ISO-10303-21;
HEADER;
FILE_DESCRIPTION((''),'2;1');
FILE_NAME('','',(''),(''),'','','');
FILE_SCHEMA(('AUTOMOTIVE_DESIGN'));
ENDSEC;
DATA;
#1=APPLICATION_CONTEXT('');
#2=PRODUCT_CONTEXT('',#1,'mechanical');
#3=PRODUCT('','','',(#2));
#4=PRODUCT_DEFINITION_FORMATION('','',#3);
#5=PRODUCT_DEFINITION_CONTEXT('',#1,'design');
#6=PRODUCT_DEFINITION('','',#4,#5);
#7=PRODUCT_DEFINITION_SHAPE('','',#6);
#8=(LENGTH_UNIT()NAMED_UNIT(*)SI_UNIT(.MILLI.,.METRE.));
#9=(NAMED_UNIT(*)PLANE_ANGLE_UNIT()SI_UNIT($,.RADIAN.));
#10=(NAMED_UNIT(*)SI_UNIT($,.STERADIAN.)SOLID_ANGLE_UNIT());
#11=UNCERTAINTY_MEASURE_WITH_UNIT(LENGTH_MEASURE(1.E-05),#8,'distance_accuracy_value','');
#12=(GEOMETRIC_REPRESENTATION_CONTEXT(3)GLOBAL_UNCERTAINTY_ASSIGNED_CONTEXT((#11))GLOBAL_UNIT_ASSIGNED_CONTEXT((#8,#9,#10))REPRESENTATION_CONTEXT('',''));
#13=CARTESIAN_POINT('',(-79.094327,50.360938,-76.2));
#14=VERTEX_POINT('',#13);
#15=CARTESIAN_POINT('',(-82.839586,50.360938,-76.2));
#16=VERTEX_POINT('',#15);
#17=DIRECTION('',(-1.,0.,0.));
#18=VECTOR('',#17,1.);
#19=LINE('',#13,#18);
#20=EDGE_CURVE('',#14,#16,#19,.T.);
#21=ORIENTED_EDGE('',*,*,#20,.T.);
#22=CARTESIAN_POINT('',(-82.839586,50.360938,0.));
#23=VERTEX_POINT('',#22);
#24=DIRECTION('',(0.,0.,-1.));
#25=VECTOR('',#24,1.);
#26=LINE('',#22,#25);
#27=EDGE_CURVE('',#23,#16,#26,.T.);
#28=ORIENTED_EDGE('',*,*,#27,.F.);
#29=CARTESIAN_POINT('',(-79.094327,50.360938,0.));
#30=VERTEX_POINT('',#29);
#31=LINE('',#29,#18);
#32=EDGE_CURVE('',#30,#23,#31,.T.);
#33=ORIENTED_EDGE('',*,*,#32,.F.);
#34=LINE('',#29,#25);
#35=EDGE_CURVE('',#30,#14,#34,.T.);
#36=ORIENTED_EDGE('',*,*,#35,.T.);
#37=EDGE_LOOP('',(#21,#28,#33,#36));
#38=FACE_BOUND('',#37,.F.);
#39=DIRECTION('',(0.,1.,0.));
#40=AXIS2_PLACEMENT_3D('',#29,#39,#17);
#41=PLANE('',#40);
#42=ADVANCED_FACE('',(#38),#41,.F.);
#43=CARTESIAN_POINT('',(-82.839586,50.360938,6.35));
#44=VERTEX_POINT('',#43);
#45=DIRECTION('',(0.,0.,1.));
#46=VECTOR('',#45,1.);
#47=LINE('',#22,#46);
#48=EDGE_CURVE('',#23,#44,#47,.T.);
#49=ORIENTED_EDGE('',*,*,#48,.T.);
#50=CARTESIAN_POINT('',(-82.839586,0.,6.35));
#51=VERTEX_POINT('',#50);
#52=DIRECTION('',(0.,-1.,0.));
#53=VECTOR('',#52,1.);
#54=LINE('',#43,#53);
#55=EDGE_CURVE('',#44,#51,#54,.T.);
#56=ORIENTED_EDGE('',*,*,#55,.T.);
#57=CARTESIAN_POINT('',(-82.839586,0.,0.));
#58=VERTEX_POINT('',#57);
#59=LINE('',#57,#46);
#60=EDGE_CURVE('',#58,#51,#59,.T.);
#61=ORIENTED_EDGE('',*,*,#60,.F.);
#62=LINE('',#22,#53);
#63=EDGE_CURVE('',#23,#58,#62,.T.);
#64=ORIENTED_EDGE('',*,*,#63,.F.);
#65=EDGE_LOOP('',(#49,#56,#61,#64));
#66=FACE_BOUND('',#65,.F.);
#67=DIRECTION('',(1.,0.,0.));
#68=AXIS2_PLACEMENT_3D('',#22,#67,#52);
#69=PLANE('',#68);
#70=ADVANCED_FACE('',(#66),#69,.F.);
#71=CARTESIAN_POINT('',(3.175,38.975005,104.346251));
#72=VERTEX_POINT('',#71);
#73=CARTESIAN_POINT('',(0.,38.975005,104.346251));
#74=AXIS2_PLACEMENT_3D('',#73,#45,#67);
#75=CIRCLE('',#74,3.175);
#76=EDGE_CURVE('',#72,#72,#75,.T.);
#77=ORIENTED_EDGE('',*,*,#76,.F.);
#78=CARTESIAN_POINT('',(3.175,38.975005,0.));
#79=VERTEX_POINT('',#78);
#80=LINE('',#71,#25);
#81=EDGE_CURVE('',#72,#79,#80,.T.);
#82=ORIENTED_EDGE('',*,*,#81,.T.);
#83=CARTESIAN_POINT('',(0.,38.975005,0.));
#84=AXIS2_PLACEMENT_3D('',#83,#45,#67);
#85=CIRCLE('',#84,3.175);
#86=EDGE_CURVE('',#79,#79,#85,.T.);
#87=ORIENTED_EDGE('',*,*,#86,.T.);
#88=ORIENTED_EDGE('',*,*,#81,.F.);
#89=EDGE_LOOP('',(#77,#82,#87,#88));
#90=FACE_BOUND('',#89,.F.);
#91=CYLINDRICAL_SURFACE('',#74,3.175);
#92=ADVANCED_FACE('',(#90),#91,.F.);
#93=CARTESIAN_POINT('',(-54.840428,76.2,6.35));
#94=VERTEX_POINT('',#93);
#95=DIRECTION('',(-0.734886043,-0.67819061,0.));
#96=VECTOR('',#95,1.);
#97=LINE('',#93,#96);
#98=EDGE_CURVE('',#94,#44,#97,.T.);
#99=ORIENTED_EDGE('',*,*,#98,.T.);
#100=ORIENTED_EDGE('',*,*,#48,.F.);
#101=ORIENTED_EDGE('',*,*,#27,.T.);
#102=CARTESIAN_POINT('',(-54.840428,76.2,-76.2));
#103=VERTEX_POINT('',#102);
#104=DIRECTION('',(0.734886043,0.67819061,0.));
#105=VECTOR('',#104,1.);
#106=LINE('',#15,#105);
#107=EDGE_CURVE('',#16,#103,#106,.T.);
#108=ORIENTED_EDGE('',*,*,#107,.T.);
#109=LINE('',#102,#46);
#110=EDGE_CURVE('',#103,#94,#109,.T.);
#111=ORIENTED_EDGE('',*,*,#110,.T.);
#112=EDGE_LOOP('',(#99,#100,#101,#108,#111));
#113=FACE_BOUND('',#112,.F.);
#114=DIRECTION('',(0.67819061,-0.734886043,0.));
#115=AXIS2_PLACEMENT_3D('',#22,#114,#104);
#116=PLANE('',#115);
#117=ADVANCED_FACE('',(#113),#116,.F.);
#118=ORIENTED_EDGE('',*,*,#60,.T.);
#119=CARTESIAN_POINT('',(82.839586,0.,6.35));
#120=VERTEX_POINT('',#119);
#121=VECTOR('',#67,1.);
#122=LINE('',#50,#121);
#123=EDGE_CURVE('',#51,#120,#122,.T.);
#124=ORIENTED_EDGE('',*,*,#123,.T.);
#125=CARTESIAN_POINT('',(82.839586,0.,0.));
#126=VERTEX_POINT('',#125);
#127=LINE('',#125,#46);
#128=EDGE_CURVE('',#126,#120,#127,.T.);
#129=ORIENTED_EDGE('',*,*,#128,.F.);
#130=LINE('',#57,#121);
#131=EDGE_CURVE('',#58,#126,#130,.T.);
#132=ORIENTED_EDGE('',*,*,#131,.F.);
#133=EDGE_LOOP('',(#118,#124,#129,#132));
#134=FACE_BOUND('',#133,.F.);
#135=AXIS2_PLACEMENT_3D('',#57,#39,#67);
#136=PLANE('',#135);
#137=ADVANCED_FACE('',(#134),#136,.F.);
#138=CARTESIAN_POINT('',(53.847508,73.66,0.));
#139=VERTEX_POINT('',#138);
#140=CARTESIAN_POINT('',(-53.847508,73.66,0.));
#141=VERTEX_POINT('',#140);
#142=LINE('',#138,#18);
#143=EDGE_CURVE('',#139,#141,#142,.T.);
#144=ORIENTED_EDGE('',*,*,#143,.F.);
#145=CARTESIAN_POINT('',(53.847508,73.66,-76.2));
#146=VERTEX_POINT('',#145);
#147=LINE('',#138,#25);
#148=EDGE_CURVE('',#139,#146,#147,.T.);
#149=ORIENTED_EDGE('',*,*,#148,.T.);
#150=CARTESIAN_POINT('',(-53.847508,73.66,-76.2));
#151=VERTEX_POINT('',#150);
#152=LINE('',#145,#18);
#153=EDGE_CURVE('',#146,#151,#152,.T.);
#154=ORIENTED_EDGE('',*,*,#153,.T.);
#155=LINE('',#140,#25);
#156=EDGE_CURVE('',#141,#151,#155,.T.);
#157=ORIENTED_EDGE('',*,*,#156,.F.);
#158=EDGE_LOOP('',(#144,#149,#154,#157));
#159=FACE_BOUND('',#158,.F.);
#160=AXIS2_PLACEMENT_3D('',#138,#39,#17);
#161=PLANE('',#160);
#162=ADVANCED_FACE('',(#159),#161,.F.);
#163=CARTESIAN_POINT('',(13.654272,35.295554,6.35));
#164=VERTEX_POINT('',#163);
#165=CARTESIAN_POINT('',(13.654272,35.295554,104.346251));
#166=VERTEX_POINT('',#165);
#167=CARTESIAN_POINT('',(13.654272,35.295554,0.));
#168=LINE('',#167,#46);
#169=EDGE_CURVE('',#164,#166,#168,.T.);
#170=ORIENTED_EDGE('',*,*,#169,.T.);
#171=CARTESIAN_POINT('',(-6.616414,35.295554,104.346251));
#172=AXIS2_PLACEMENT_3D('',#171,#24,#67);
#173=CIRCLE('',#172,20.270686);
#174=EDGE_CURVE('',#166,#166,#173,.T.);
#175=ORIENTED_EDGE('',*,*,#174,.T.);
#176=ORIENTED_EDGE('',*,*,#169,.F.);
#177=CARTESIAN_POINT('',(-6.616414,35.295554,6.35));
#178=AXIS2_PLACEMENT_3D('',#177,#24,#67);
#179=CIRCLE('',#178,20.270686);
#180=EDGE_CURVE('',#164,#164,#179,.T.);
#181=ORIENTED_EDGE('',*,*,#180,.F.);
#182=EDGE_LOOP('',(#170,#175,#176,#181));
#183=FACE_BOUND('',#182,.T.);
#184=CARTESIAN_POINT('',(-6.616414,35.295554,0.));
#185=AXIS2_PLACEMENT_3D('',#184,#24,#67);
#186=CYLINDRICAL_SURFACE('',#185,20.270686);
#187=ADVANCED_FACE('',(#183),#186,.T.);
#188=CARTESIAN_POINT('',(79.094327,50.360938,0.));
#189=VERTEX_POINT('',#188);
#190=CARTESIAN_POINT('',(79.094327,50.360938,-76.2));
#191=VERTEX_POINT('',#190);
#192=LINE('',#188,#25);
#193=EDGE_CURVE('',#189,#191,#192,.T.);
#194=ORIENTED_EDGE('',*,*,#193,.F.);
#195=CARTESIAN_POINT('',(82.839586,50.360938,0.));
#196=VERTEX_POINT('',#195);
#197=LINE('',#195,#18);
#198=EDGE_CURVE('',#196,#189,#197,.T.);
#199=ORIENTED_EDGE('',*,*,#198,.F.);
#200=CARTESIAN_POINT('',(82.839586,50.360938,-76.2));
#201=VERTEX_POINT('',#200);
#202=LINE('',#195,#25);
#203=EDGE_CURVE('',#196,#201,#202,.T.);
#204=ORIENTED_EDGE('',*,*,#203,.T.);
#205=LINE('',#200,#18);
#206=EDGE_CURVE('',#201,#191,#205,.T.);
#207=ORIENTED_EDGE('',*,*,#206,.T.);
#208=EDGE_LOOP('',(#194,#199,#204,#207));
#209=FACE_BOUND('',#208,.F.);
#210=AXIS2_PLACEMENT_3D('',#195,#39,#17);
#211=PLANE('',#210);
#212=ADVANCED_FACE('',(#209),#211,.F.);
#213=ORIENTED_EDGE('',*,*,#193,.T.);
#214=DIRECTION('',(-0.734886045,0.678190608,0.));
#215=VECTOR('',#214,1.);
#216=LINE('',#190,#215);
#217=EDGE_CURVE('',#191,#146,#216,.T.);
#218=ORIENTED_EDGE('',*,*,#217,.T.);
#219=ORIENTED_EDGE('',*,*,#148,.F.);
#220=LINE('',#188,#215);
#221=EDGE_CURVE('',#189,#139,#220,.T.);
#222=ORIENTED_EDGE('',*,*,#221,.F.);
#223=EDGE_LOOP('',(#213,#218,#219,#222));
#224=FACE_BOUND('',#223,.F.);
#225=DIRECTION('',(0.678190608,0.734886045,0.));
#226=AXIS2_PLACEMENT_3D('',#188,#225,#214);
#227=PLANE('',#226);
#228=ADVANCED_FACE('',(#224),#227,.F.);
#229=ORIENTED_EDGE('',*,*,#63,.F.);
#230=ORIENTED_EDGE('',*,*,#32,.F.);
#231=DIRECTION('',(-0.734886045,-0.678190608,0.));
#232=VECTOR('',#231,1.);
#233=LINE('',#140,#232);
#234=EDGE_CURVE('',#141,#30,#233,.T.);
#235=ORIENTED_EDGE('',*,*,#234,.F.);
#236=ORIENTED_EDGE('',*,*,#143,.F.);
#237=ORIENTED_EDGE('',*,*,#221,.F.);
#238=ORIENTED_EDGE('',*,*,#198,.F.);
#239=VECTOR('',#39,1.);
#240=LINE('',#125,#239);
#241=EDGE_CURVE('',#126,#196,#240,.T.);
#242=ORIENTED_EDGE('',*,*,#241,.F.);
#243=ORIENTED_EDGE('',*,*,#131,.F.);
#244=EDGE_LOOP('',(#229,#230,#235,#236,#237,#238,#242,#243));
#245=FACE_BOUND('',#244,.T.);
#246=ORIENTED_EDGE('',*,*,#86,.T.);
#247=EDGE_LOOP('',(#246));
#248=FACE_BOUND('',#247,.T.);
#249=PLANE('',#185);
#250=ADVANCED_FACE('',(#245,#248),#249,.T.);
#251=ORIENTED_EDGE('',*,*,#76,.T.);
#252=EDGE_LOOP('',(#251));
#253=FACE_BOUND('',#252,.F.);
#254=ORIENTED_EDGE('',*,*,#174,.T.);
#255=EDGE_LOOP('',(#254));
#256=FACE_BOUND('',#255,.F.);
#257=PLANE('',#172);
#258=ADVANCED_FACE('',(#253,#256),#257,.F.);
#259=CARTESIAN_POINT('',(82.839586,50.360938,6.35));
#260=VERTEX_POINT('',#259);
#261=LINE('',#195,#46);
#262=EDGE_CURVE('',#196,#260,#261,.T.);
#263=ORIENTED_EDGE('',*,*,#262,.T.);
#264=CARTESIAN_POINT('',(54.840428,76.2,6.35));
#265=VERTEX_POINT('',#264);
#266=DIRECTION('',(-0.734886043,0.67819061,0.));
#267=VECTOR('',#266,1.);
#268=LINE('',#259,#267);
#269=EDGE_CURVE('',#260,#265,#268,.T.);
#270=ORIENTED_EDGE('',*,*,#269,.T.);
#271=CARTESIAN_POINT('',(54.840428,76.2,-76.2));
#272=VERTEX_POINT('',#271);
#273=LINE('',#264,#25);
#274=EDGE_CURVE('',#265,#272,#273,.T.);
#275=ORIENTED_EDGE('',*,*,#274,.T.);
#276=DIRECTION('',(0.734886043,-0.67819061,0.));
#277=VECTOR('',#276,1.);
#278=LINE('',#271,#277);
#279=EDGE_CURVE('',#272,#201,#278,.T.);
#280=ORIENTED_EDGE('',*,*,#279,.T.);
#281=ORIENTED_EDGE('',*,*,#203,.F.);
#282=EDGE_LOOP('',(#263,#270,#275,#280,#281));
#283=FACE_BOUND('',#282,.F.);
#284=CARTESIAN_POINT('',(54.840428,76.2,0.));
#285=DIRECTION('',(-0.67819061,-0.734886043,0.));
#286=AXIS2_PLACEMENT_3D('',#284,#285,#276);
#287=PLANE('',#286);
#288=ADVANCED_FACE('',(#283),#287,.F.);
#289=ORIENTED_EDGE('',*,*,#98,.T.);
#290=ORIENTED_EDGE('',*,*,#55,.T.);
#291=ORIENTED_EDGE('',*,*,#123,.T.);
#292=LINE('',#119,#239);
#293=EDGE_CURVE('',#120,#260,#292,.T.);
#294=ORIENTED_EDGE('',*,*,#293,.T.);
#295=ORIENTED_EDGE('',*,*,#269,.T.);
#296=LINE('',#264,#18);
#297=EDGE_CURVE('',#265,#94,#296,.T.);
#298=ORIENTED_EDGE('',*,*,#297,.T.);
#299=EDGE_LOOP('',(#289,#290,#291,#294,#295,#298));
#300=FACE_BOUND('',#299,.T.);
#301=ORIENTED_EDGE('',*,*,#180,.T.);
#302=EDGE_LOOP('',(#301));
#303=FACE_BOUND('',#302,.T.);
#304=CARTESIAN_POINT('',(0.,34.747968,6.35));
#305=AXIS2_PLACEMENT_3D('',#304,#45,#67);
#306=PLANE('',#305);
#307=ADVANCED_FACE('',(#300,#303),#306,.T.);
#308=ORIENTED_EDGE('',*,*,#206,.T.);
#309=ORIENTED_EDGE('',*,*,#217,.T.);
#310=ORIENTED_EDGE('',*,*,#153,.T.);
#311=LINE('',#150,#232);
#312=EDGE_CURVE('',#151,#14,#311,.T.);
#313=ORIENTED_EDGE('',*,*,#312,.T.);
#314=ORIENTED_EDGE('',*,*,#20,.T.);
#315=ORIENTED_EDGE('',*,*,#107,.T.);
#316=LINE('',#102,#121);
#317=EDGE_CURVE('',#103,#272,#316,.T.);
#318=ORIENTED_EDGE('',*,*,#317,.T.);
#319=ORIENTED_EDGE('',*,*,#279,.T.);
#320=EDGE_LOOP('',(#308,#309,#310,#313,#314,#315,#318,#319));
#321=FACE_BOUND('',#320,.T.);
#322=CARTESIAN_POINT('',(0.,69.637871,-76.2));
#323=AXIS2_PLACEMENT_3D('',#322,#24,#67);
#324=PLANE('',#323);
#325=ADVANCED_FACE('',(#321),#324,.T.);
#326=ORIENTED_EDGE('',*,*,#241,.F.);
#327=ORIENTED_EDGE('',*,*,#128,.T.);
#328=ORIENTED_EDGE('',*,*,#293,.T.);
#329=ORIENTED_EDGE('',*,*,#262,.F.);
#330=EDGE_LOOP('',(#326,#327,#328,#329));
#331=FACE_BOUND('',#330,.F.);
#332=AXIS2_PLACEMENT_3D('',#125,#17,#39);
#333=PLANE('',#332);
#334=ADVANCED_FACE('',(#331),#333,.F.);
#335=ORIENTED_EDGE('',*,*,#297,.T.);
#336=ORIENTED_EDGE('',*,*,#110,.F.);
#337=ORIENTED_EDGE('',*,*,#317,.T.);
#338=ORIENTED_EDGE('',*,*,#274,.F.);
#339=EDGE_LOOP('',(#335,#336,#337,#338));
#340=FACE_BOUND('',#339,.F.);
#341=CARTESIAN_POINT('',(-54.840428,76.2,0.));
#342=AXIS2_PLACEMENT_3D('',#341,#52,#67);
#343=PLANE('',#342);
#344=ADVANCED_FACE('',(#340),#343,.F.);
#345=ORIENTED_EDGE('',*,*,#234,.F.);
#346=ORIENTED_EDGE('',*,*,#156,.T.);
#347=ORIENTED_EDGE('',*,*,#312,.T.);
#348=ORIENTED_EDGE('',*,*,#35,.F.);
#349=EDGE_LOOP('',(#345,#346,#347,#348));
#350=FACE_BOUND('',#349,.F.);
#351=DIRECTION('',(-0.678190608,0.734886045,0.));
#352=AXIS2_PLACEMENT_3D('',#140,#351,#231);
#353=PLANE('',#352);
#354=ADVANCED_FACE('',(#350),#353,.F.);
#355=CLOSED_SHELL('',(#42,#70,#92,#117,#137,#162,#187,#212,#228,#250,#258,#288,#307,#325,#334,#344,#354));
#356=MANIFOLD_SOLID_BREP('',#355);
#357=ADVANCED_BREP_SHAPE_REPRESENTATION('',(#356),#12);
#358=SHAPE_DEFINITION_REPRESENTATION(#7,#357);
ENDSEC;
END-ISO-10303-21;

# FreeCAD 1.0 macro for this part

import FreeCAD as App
import Part
import Sketcher
Q = App.Units.Quantity


def add_polygon(sketch, points):
    """Adds a closed chain of lines whose ends are joined by coincident constraints."""
    first, n = sketch.GeometryCount, len(points)
    for a, b in zip(points, points[1:] + points[:1]):
        sketch.addGeometry(Part.LineSegment(App.Vector(*a, 0), App.Vector(*b, 0)), False)
    for i in range(n):
        sketch.addConstraint(Sketcher.Constraint("Coincident", first + i, 2, first + (i + 1) % n, 1))

doc = App.newDocument("Part")
params = doc.addObject("Spreadsheet::Sheet", "Params")
for row, (alias, value) in enumerate([
    ("sketch1_length", "1.5 in"),
    ("pad1_length", "0.25 in"),
    ("sketch2_length", "1.5 in"),
    ("pad2_length", "3 in"),
    ("pad3_length", "104.346251 mm"),
    ("sketch4_diameter", "0.25 in"),
], start=1):
    params.set(f"A{row}", alias)
    params.set(f"B{row}", "=" + value)
    params.setAlias(f"B{row}", alias)

body = doc.addObject("PartDesign::Body", "Body")

sketch1 = body.newObject("Sketcher::SketchObject", "Sketch")
sketch1.AttachmentSupport = (doc.getObject("XY_Plane"), [""])
sketch1.MapMode = "FlatFace"
add_polygon(sketch1, [(-83, 50), (-83, 0), (83, 0), (83, 50), (55, 76), (-55, 76)])
sketch1.addConstraint(Sketcher.Constraint("Vertical", 0))
sketch1.addConstraint(Sketcher.Constraint("Horizontal", 1))
sketch1.addConstraint(Sketcher.Constraint("Vertical", 2))
sketch1.addConstraint(Sketcher.Constraint("Horizontal", 4))
sketch1.addConstraint(Sketcher.Constraint("Symmetric", 0, 2, 1, 2, -1, 1))
sketch1.addConstraint(Sketcher.Constraint("Horizontal", 2, 2, 5, 2))
sketch1.addConstraint(Sketcher.Constraint("Equal", 3, 5))
sketch1.addConstraint(Sketcher.Constraint("DistanceY", -1, 1, 3, 2, Q("3 in")))
sketch1.addConstraint(Sketcher.Constraint("Distance", 3, Q("1.5 in")))
sketch1.addConstraint(Sketcher.Constraint("DistanceX", 1, 1, 1, 2, Q("165.679172 mm")))
sketch1.addConstraint(Sketcher.Constraint("DistanceX", 4, 2, 4, 1, Q("109.680856 mm")))
sketch1.setExpression("Constraints[14]", "Params.sketch1_length")
pad1 = body.newObject("PartDesign::Pad", "Pad")
pad1.Profile = sketch1
pad1.setExpression("Length", "Params.pad1_length")

sketch2 = body.newObject("Sketcher::SketchObject", "Sketch001")
sketch2.AttachmentSupport = (doc.getObject("XY_Plane"), [""])
sketch2.MapMode = "FlatFace"
add_polygon(sketch2, [(-54.8, 76.2), (54.8, 76.2), (82.8, 50.4), (79.1, 50.4), (53.8, 73.7), (-53.8, 73.7), (-79.1, 50.4), (-82.8, 50.4)])
sketch2.addConstraint(Sketcher.Constraint("Horizontal", 0))
sketch2.addConstraint(Sketcher.Constraint("Horizontal", 2))
sketch2.addConstraint(Sketcher.Constraint("Horizontal", 4))
sketch2.addConstraint(Sketcher.Constraint("Horizontal", 6))
sketch2.addConstraint(Sketcher.Constraint("Symmetric", 2, 2, 5, 2, -2))
sketch2.addConstraint(Sketcher.Constraint("Parallel", 1, 3))
sketch2.addConstraint(Sketcher.Constraint("Parallel", 5, 7))
sketch2.addConstraint(Sketcher.Constraint("Equal", 2, 6))
sketch2.addConstraint(Sketcher.Constraint("Equal", 3, 5))
sketch2.addConstraint(Sketcher.Constraint("DistanceY", -1, 1, 0, 2, Q("3 in")))
sketch2.addConstraint(Sketcher.Constraint("Distance", 1, Q("1.5 in")))
sketch2.addConstraint(Sketcher.Constraint("DistanceY", -1, 1, 3, 2, Q("2.9 in")))
sketch2.addConstraint(Sketcher.Constraint("DistanceX", 2, 2, 2, 1, Q("3.745259 mm")))
sketch2.addConstraint(Sketcher.Constraint("DistanceX", 0, 2, 2, 2, Q("24.253899 mm")))
sketch2.addConstraint(Sketcher.Constraint("DistanceX", 0, 1, 0, 2, Q("109.680856 mm")))
sketch2.setExpression("Constraints[18]", "Params.sketch2_length")
pad2 = body.newObject("PartDesign::Pad", "Pad001")
pad2.Profile = sketch2
pad2.setExpression("Length", "Params.pad2_length")
pad2.Reversed = True

sketch3 = body.newObject("Sketcher::SketchObject", "Sketch002")
sketch3.AttachmentSupport = (doc.getObject("XY_Plane"), [""])
sketch3.MapMode = "FlatFace"
sketch3.addGeometry(Part.Circle(App.Vector(-7, 35, 0), App.Vector(0, 0, 1), 20), False)
sketch3.addConstraint(Sketcher.Constraint("Diameter", 0, Q("40.541372 mm")))
sketch3.addConstraint(Sketcher.Constraint("DistanceX", 0, 3, -1, 1, Q("6.616414 mm")))
sketch3.addConstraint(Sketcher.Constraint("DistanceY", -1, 1, 0, 3, Q("35.295554 mm")))
pad3 = body.newObject("PartDesign::Pad", "Pad002")
pad3.Profile = sketch3
pad3.setExpression("Length", "Params.pad3_length")

sketch4 = body.newObject("Sketcher::SketchObject", "Sketch003")
sketch4.AttachmentSupport = (doc.getObject("XY_Plane"), [""])
sketch4.MapMode = "FlatFace"
sketch4.AttachmentOffset = App.Placement(App.Vector(0, 0, 104.346251), App.Rotation())
sketch4.addGeometry(Part.Circle(App.Vector(0, 39, 0), App.Vector(0, 0, 1), 3.2), False)
sketch4.addConstraint(Sketcher.Constraint("PointOnObject", 0, 3, -2))
sketch4.addConstraint(Sketcher.Constraint("Diameter", 0, Q("0.25 in")))
sketch4.addConstraint(Sketcher.Constraint("DistanceY", -1, 1, 0, 3, Q("38.975005 mm")))
sketch4.setExpression("Constraints[1]", "Params.sketch4_diameter")
pocket1 = body.newObject("PartDesign::Pocket", "Pocket")
pocket1.Profile = sketch4
pocket1.Type = "ThroughAll"

doc.recompute()
